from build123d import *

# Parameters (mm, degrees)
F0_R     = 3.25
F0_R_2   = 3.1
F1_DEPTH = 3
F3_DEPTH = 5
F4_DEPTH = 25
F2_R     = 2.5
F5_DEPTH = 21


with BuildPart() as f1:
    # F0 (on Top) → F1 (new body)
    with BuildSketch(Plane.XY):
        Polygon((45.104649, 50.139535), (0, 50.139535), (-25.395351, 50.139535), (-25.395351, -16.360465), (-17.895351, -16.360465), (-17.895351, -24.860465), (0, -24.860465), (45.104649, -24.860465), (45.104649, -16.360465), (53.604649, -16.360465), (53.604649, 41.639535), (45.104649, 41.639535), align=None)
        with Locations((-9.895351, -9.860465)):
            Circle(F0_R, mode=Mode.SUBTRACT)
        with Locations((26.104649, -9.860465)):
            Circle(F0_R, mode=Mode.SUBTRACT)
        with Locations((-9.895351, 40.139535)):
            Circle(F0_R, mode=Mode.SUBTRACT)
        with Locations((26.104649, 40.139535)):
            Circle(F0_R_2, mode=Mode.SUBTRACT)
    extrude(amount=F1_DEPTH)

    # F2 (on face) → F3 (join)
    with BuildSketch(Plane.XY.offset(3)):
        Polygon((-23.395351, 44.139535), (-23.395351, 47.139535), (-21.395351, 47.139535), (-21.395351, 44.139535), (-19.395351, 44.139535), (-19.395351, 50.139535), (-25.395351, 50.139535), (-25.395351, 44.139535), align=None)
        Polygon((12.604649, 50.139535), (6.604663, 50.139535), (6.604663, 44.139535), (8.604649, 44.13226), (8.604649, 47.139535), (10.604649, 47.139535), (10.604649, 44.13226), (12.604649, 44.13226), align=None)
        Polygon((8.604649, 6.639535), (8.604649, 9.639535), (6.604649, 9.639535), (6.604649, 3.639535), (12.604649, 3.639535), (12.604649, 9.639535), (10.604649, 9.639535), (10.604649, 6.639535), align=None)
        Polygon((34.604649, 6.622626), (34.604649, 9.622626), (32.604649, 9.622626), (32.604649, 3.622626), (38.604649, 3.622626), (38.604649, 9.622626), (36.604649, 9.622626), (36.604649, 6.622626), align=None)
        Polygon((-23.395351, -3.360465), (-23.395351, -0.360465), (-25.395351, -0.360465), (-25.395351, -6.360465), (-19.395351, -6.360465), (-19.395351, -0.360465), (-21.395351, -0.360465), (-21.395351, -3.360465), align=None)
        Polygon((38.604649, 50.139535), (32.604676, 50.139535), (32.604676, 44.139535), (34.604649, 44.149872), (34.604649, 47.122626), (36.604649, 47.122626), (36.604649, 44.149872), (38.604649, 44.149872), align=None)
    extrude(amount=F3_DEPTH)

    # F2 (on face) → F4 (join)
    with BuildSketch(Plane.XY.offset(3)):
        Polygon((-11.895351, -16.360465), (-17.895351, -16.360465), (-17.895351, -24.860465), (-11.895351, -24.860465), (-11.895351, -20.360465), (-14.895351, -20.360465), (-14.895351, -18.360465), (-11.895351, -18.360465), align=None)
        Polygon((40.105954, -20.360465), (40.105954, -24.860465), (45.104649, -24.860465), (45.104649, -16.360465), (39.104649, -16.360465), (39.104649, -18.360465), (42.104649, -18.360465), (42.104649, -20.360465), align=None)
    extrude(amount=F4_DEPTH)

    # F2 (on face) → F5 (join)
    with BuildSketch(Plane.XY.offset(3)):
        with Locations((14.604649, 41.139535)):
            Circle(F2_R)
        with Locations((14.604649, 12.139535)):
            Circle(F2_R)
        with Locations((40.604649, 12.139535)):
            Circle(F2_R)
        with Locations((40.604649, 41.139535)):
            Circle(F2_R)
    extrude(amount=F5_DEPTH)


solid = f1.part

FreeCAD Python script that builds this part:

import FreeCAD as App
import Part
import Sketcher

V = App.Vector
Q = App.Units.Quantity

doc = App.newDocument("Part")
body = doc.addObject("PartDesign::Body", "Body")

sketch1 = doc.addObject("Sketcher::SketchObject", "Sketch")
body.addObject(sketch1)
sketch1.AttachmentSupport = (doc.XY_Plane, [""])
sketch1.MapMode = "FlatFace"
sketch1.addGeometry([
    Part.LineSegment(V(45.104649, 50.139535, 0), V(-25.395351, 50.139535, 0)),
    Part.LineSegment(V(-25.395351, 50.139535, 0), V(-25.395351, -16.360465, 0)),
    Part.LineSegment(V(-25.395351, -16.360465, 0), V(-17.895351, -16.360465, 0)),
    Part.LineSegment(V(-17.895351, -16.360465, 0), V(-17.895351, -24.860465, 0)),
    Part.LineSegment(V(-17.895351, -24.860465, 0), V(45.104649, -24.860465, 0)),
    Part.LineSegment(V(45.104649, -24.860465, 0), V(45.104649, -16.360465, 0)),
    Part.LineSegment(V(45.104649, -16.360465, 0), V(53.604649, -16.360465, 0)),
    Part.LineSegment(V(53.604649, -16.360465, 0), V(53.604649, 41.639535, 0)),
    Part.LineSegment(V(53.604649, 41.639535, 0), V(45.104649, 41.639535, 0)),
    Part.LineSegment(V(45.104649, 41.639535, 0), V(45.104649, 50.139535, 0)),
    Part.Circle(V(-9.895351, -9.860465, 0), V(0, 0, 1), 3.25),
    Part.Circle(V(26.104649, -9.860465, 0), V(0, 0, 1), 3.25),
    Part.Circle(V(-9.895351, 40.139535, 0), V(0, 0, 1), 3.25),
    Part.Circle(V(26.104649, 40.139535, 0), V(0, 0, 1), 3.1),
], False)
sketch1.addConstraint([
    Sketcher.Constraint("Coincident", 0, 2, 1, 1),
    Sketcher.Constraint("Coincident", 1, 2, 2, 1),
    Sketcher.Constraint("Coincident", 2, 2, 3, 1),
    Sketcher.Constraint("Coincident", 3, 2, 4, 1),
    Sketcher.Constraint("Coincident", 4, 2, 5, 1),
    Sketcher.Constraint("Coincident", 5, 2, 6, 1),
    Sketcher.Constraint("Coincident", 6, 2, 7, 1),
    Sketcher.Constraint("Coincident", 7, 2, 8, 1),
    Sketcher.Constraint("Coincident", 8, 2, 9, 1),
    Sketcher.Constraint("Coincident", 9, 2, 0, 1),
    Sketcher.Constraint("Horizontal", 0),
    Sketcher.Constraint("Vertical", 1),
    Sketcher.Constraint("Horizontal", 2),
    Sketcher.Constraint("Vertical", 3),
    Sketcher.Constraint("Horizontal", 4),
    Sketcher.Constraint("Vertical", 5),
    Sketcher.Constraint("Horizontal", 6),
    Sketcher.Constraint("Vertical", 7),
    Sketcher.Constraint("Horizontal", 8),
    Sketcher.Constraint("Vertical", 9),
    Sketcher.Constraint("Equal", 10, 11),
    Sketcher.Constraint("Equal", 11, 12),
    Sketcher.Constraint("Horizontal", 10, 3, 11, 3),
    Sketcher.Constraint("Horizontal", 12, 3, 13, 3),
    Sketcher.Constraint("Horizontal", 2, 2, 5, 2),
    Sketcher.Constraint("Vertical", 10, 3, 12, 3),
    Sketcher.Constraint("Vertical", 11, 3, 13, 3),
    Sketcher.Constraint("Vertical", 5, 2, 8, 2),
    Sketcher.Constraint("Equal", 8, 3),
    Sketcher.Constraint("Equal", 5, 9),
    Sketcher.Constraint("Diameter", 10, Q("6.5 mm")),
    Sketcher.Constraint("Diameter", 13, Q("6.2 mm")),
    Sketcher.Constraint("DistanceX", 4, 1, 4, 2, Q("63 mm")),
    Sketcher.Constraint("DistanceY", 7, 1, 7, 2, Q("58 mm")),
    Sketcher.Constraint("DistanceX", 0, 2, 0, 1, Q("70.5 mm")),
    Sketcher.Constraint("DistanceX", 6, 1, 6, 2, Q("8.5 mm")),
    Sketcher.Constraint("DistanceX", 10, 3, 11, 3, Q("36 mm")),
    Sketcher.Constraint("DistanceY", 10, 3, 12, 3, Q("50 mm")),
    Sketcher.Constraint("DistanceY", 12, 3, 0, 2, Q("10 mm")),
    Sketcher.Constraint("DistanceX", 2, 2, 10, 3, Q("8 mm")),
    Sketcher.Constraint("DistanceX", 10, 3, -1, 1, Q("9.895351 mm")),
    Sketcher.Constraint("DistanceY", 10, 3, -1, 1, Q("9.860465 mm")),
])
pad1 = doc.addObject("PartDesign::Pad", "Pad")
body.addObject(pad1)
pad1.Profile = sketch1
pad1.Length = 3

sketch2 = doc.addObject("Sketcher::SketchObject", "Sketch001")
body.addObject(sketch2)
sketch2.AttachmentSupport = (doc.XY_Plane, [""])
sketch2.MapMode = "FlatFace"
sketch2.AttachmentOffset = App.Placement(V(0, 0, 3), App.Rotation())
sketch2.addGeometry([
    Part.LineSegment(V(-23.395351, 44.139535, 0), V(-23.395351, 47.139535, 0)),
    Part.LineSegment(V(-23.395351, 47.139535, 0), V(-21.395351, 47.139535, 0)),
    Part.LineSegment(V(-21.395351, 47.139535, 0), V(-21.395351, 44.139535, 0)),
    Part.LineSegment(V(-21.395351, 44.139535, 0), V(-19.395351, 44.139535, 0)),
    Part.LineSegment(V(-19.395351, 44.139535, 0), V(-19.395351, 50.139535, 0)),
    Part.LineSegment(V(-19.395351, 50.139535, 0), V(-25.395351, 50.139535, 0)),
    Part.LineSegment(V(-25.395351, 50.139535, 0), V(-25.395351, 44.139535, 0)),
    Part.LineSegment(V(-25.395351, 44.139535, 0), V(-23.395351, 44.139535, 0)),
    Part.LineSegment(V(12.604649, 50.139535, 0), V(6.604663, 50.139535, 0)),
    Part.LineSegment(V(6.604663, 50.139535, 0), V(6.604663, 44.139535, 0)),
    Part.LineSegment(V(6.604663, 44.139535, 0), V(8.604649, 44.13226, 0)),
    Part.LineSegment(V(8.604649, 44.13226, 0), V(8.604649, 47.139535, 0)),
    Part.LineSegment(V(8.604649, 47.139535, 0), V(10.604649, 47.139535, 0)),
    Part.LineSegment(V(10.604649, 47.139535, 0), V(10.604649, 44.13226, 0)),
    Part.LineSegment(V(10.604649, 44.13226, 0), V(12.604649, 44.13226, 0)),
    Part.LineSegment(V(12.604649, 44.13226, 0), V(12.604649, 50.139535, 0)),
    Part.LineSegment(V(8.604649, 6.639535, 0), V(8.604649, 9.639535, 0)),
    Part.LineSegment(V(8.604649, 9.639535, 0), V(6.604649, 9.639535, 0)),
    Part.LineSegment(V(6.604649, 9.639535, 0), V(6.604649, 3.639535, 0)),
    Part.LineSegment(V(6.604649, 3.639535, 0), V(12.604649, 3.639535, 0)),
    Part.LineSegment(V(12.604649, 3.639535, 0), V(12.604649, 9.639535, 0)),
    Part.LineSegment(V(12.604649, 9.639535, 0), V(10.604649, 9.639535, 0)),
    Part.LineSegment(V(10.604649, 9.639535, 0), V(10.604649, 6.639535, 0)),
    Part.LineSegment(V(10.604649, 6.639535, 0), V(8.604649, 6.639535, 0)),
    Part.LineSegment(V(34.604649, 6.622626, 0), V(34.604649, 9.622626, 0)),
    Part.LineSegment(V(34.604649, 9.622626, 0), V(32.604649, 9.622626, 0)),
    Part.LineSegment(V(32.604649, 9.622626, 0), V(32.604649, 3.622626, 0)),
    Part.LineSegment(V(32.604649, 3.622626, 0), V(38.604649, 3.622626, 0)),
    Part.LineSegment(V(38.604649, 3.622626, 0), V(38.604649, 9.622626, 0)),
    Part.LineSegment(V(38.604649, 9.622626, 0), V(36.604649, 9.622626, 0)),
    Part.LineSegment(V(36.604649, 9.622626, 0), V(36.604649, 6.622626, 0)),
    Part.LineSegment(V(36.604649, 6.622626, 0), V(34.604649, 6.622626, 0)),
    Part.LineSegment(V(-23.395351, -3.360465, 0), V(-23.395351, -0.360465, 0)),
    Part.LineSegment(V(-23.395351, -0.360465, 0), V(-25.395351, -0.360465, 0)),
    Part.LineSegment(V(-25.395351, -0.360465, 0), V(-25.395351, -6.360465, 0)),
    Part.LineSegment(V(-25.395351, -6.360465, 0), V(-19.395351, -6.360465, 0)),
    Part.LineSegment(V(-19.395351, -6.360465, 0), V(-19.395351, -0.360465, 0)),
    Part.LineSegment(V(-19.395351, -0.360465, 0), V(-21.395351, -0.360465, 0)),
    Part.LineSegment(V(-21.395351, -0.360465, 0), V(-21.395351, -3.360465, 0)),
    Part.LineSegment(V(-21.395351, -3.360465, 0), V(-23.395351, -3.360465, 0)),
    Part.LineSegment(V(38.604649, 50.139535, 0), V(32.604676, 50.139535, 0)),
    Part.LineSegment(V(32.604676, 50.139535, 0), V(32.604676, 44.139535, 0)),
    Part.LineSegment(V(32.604676, 44.139535, 0), V(34.604649, 44.149872, 0)),
    Part.LineSegment(V(34.604649, 44.149872, 0), V(34.604649, 47.122626, 0)),
    Part.LineSegment(V(34.604649, 47.122626, 0), V(36.604649, 47.122626, 0)),
    Part.LineSegment(V(36.604649, 47.122626, 0), V(36.604649, 44.149872, 0)),
    Part.LineSegment(V(36.604649, 44.149872, 0), V(38.604649, 44.149872, 0)),
    Part.LineSegment(V(38.604649, 44.149872, 0), V(38.604649, 50.139535, 0)),
], False)
sketch2.addConstraint([
    Sketcher.Constraint("Coincident", 0, 2, 1, 1),
    Sketcher.Constraint("Coincident", 1, 2, 2, 1),
    Sketcher.Constraint("Coincident", 2, 2, 3, 1),
    Sketcher.Constraint("Coincident", 3, 2, 4, 1),
    Sketcher.Constraint("Coincident", 4, 2, 5, 1),
    Sketcher.Constraint("Coincident", 5, 2, 6, 1),
    Sketcher.Constraint("Coincident", 6, 2, 7, 1),
    Sketcher.Constraint("Coincident", 7, 2, 0, 1),
    Sketcher.Constraint("Coincident", 8, 2, 9, 1),
    Sketcher.Constraint("Coincident", 9, 2, 10, 1),
    Sketcher.Constraint("Coincident", 10, 2, 11, 1),
    Sketcher.Constraint("Coincident", 11, 2, 12, 1),
    Sketcher.Constraint("Coincident", 12, 2, 13, 1),
    Sketcher.Constraint("Coincident", 13, 2, 14, 1),
    Sketcher.Constraint("Coincident", 14, 2, 15, 1),
    Sketcher.Constraint("Coincident", 15, 2, 8, 1),
    Sketcher.Constraint("Coincident", 16, 2, 17, 1),
    Sketcher.Constraint("Coincident", 17, 2, 18, 1),
    Sketcher.Constraint("Coincident", 18, 2, 19, 1),
    Sketcher.Constraint("Coincident", 19, 2, 20, 1),
    Sketcher.Constraint("Coincident", 20, 2, 21, 1),
    Sketcher.Constraint("Coincident", 21, 2, 22, 1),
    Sketcher.Constraint("Coincident", 22, 2, 23, 1),
    Sketcher.Constraint("Coincident", 23, 2, 16, 1),
    Sketcher.Constraint("Coincident", 24, 2, 25, 1),
    Sketcher.Constraint("Coincident", 25, 2, 26, 1),
    Sketcher.Constraint("Coincident", 26, 2, 27, 1),
    Sketcher.Constraint("Coincident", 27, 2, 28, 1),
    Sketcher.Constraint("Coincident", 28, 2, 29, 1),
    Sketcher.Constraint("Coincident", 29, 2, 30, 1),
    Sketcher.Constraint("Coincident", 30, 2, 31, 1),
    Sketcher.Constraint("Coincident", 31, 2, 24, 1),
    Sketcher.Constraint("Coincident", 32, 2, 33, 1),
    Sketcher.Constraint("Coincident", 33, 2, 34, 1),
    Sketcher.Constraint("Coincident", 34, 2, 35, 1),
    Sketcher.Constraint("Coincident", 35, 2, 36, 1),
    Sketcher.Constraint("Coincident", 36, 2, 37, 1),
    Sketcher.Constraint("Coincident", 37, 2, 38, 1),
    Sketcher.Constraint("Coincident", 38, 2, 39, 1),
    Sketcher.Constraint("Coincident", 39, 2, 32, 1),
    Sketcher.Constraint("Coincident", 40, 2, 41, 1),
    Sketcher.Constraint("Coincident", 41, 2, 42, 1),
    Sketcher.Constraint("Coincident", 42, 2, 43, 1),
    Sketcher.Constraint("Coincident", 43, 2, 44, 1),
    Sketcher.Constraint("Coincident", 44, 2, 45, 1),
    Sketcher.Constraint("Coincident", 45, 2, 46, 1),
    Sketcher.Constraint("Coincident", 46, 2, 47, 1),
    Sketcher.Constraint("Coincident", 47, 2, 40, 1),
    Sketcher.Constraint("Vertical", 0),
    Sketcher.Constraint("Horizontal", 1),
    Sketcher.Constraint("Vertical", 2),
    Sketcher.Constraint("Horizontal", 3),
    Sketcher.Constraint("Vertical", 4),
    Sketcher.Constraint("Horizontal", 5),
    Sketcher.Constraint("Vertical", 6),
    Sketcher.Constraint("Horizontal", 7),
    Sketcher.Constraint("Horizontal", 8),
    Sketcher.Constraint("Vertical", 9),
    Sketcher.Constraint("Vertical", 11),
    Sketcher.Constraint("Horizontal", 12),
    Sketcher.Constraint("Vertical", 13),
    Sketcher.Constraint("Horizontal", 14),
    Sketcher.Constraint("Vertical", 15),
    Sketcher.Constraint("Vertical", 16),
    Sketcher.Constraint("Horizontal", 17),
    Sketcher.Constraint("Vertical", 18),
    Sketcher.Constraint("Horizontal", 19),
    Sketcher.Constraint("Vertical", 20),
    Sketcher.Constraint("Horizontal", 21),
    Sketcher.Constraint("Vertical", 22),
    Sketcher.Constraint("Horizontal", 23),
    Sketcher.Constraint("Vertical", 24),
    Sketcher.Constraint("Horizontal", 25),
    Sketcher.Constraint("Vertical", 26),
    Sketcher.Constraint("Horizontal", 27),
    Sketcher.Constraint("Vertical", 28),
    Sketcher.Constraint("Horizontal", 29),
    Sketcher.Constraint("Vertical", 30),
    Sketcher.Constraint("Horizontal", 31),
    Sketcher.Constraint("Vertical", 32),
    Sketcher.Constraint("Horizontal", 33),
    Sketcher.Constraint("Vertical", 34),
    Sketcher.Constraint("Horizontal", 35),
    Sketcher.Constraint("Vertical", 36),
    Sketcher.Constraint("Horizontal", 37),
    Sketcher.Constraint("Vertical", 38),
    Sketcher.Constraint("Horizontal", 39),
    Sketcher.Constraint("Horizontal", 40),
    Sketcher.Constraint("Vertical", 41),
    Sketcher.Constraint("Vertical", 43),
    Sketcher.Constraint("Horizontal", 44),
    Sketcher.Constraint("Vertical", 45),
    Sketcher.Constraint("Horizontal", 46),
    Sketcher.Constraint("Vertical", 47),
    Sketcher.Constraint("Horizontal", 3, 2, 6, 2),
    Sketcher.Constraint("Horizontal", 5, 2, 8, 2),
    Sketcher.Constraint("Horizontal", 7, 2, 9, 2),
    Sketcher.Constraint("Horizontal", 1, 2, 11, 2),
    Sketcher.Constraint("Horizontal", 10, 2, 13, 2),
    Sketcher.Constraint("Horizontal", 17, 2, 20, 2),
    Sketcher.Constraint("Horizontal", 25, 2, 28, 2),
    Sketcher.Constraint("Horizontal", 33, 2, 36, 2),
    Sketcher.Constraint("Horizontal", 15, 2, 40, 2),
    Sketcher.Constraint("Horizontal", 9, 2, 41, 2),
    Sketcher.Constraint("Horizontal", 42, 2, 45, 2),
    Sketcher.Constraint("Vertical", 11, 2, 16, 2),
    Sketcher.Constraint("Vertical", 15, 2, 19, 2),
    Sketcher.Constraint("Vertical", 13, 2, 21, 2),
    Sketcher.Constraint("Vertical", 7, 2, 32, 2),
    Sketcher.Constraint("Vertical", 6, 2, 33, 2),
    Sketcher.Constraint("Vertical", 4, 2, 35, 2),
    Sketcher.Constraint("Vertical", 2, 2, 37, 2),
    Sketcher.Constraint("Vertical", 31, 2, 42, 2),
    Sketcher.Constraint("Vertical", 30, 2, 44, 2),
    Sketcher.Constraint("Vertical", 28, 2, 46, 2),
    Sketcher.Constraint("Equal", 1, 3),
    Sketcher.Constraint("Equal", 3, 7),
    Sketcher.Constraint("Equal", 7, 12),
    Sketcher.Constraint("Equal", 12, 14),
    Sketcher.Constraint("Equal", 14, 17),
    Sketcher.Constraint("Equal", 23, 25),
    Sketcher.Constraint("Equal", 19, 27),
    Sketcher.Constraint("Equal", 25, 29),
    Sketcher.Constraint("Equal", 35, 4),
    Sketcher.Constraint("Equal", 2, 16),
    Sketcher.Constraint("Equal", 9, 18),
    Sketcher.Constraint("Equal", 22, 24),
    Sketcher.Constraint("Equal", 20, 26),
    Sketcher.Constraint("Equal", 30, 32),
    Sketcher.Constraint("Equal", 28, 34),
    Sketcher.Constraint("Equal", 10, 42),
    Sketcher.Constraint("DistanceX", 1, 1, 1, 2, Q("2 mm")),
    Sketcher.Constraint("DistanceY", 0, 1, 0, 2, Q("3 mm")),
    Sketcher.Constraint("Distance", 10, Q("1.999999 mm")),
    Sketcher.Constraint("DistanceX", 3, 2, 10, 2, Q("28 mm")),
    Sketcher.Constraint("DistanceX", 20, 2, 24, 2, Q("22 mm")),
    Sketcher.Constraint("DistanceY", 32, 2, 18, 2, Q("4 mm")),
    Sketcher.Constraint("DistanceY", 16, 2, 9, 2, Q("34.5 mm")),
    Sketcher.Constraint("DistanceY", 11, 1, 11, 2, Q("3.007275 mm")),
    Sketcher.Constraint("DistanceY", 43, 1, 43, 2, Q("2.972754 mm")),
    Sketcher.Constraint("DistanceY", 47, 1, 47, 2, Q("5.989663 mm")),
    Sketcher.Constraint("DistanceX", 0, 2, -1, 1, Q("23.395351 mm")),
    Sketcher.Constraint("DistanceY", -1, 1, 10, 2, Q("44.13226 mm")),
    Sketcher.Constraint("DistanceY", 24, 2, 20, 2, Q("0.016909 mm")),
])
pad2 = doc.addObject("PartDesign::Pad", "Pad001")
body.addObject(pad2)
pad2.Profile = sketch2
pad2.Length = 5

sketch3 = doc.addObject("Sketcher::SketchObject", "Sketch002")
body.addObject(sketch3)
sketch3.AttachmentSupport = (doc.XY_Plane, [""])
sketch3.MapMode = "FlatFace"
sketch3.AttachmentOffset = App.Placement(V(0, 0, 3), App.Rotation())
sketch3.addGeometry([
    Part.LineSegment(V(-11.895351, -16.360465, 0), V(-17.895351, -16.360465, 0)),
    Part.LineSegment(V(-17.895351, -16.360465, 0), V(-17.895351, -24.860465, 0)),
    Part.LineSegment(V(-17.895351, -24.860465, 0), V(-11.895351, -24.860465, 0)),
    Part.LineSegment(V(-11.895351, -24.860465, 0), V(-11.895351, -20.360465, 0)),
    Part.LineSegment(V(-11.895351, -20.360465, 0), V(-14.895351, -20.360465, 0)),
    Part.LineSegment(V(-14.895351, -20.360465, 0), V(-14.895351, -18.360465, 0)),
    Part.LineSegment(V(-14.895351, -18.360465, 0), V(-11.895351, -18.360465, 0)),
    Part.LineSegment(V(-11.895351, -18.360465, 0), V(-11.895351, -16.360465, 0)),
    Part.LineSegment(V(40.105954, -20.360465, 0), V(40.105954, -24.860465, 0)),
    Part.LineSegment(V(40.105954, -24.860465, 0), V(45.104649, -24.860465, 0)),
    Part.LineSegment(V(45.104649, -24.860465, 0), V(45.104649, -16.360465, 0)),
    Part.LineSegment(V(45.104649, -16.360465, 0), V(39.104649, -16.360465, 0)),
    Part.LineSegment(V(39.104649, -16.360465, 0), V(39.104649, -18.360465, 0)),
    Part.LineSegment(V(39.104649, -18.360465, 0), V(42.104649, -18.360465, 0)),
    Part.LineSegment(V(42.104649, -18.360465, 0), V(42.104649, -20.360465, 0)),
    Part.LineSegment(V(42.104649, -20.360465, 0), V(40.105954, -20.360465, 0)),
], False)
sketch3.addConstraint([
    Sketcher.Constraint("Coincident", 0, 2, 1, 1),
    Sketcher.Constraint("Coincident", 1, 2, 2, 1),
    Sketcher.Constraint("Coincident", 2, 2, 3, 1),
    Sketcher.Constraint("Coincident", 3, 2, 4, 1),
    Sketcher.Constraint("Coincident", 4, 2, 5, 1),
    Sketcher.Constraint("Coincident", 5, 2, 6, 1),
    Sketcher.Constraint("Coincident", 6, 2, 7, 1),
    Sketcher.Constraint("Coincident", 7, 2, 0, 1),
    Sketcher.Constraint("Coincident", 8, 2, 9, 1),
    Sketcher.Constraint("Coincident", 9, 2, 10, 1),
    Sketcher.Constraint("Coincident", 10, 2, 11, 1),
    Sketcher.Constraint("Coincident", 11, 2, 12, 1),
    Sketcher.Constraint("Coincident", 12, 2, 13, 1),
    Sketcher.Constraint("Coincident", 13, 2, 14, 1),
    Sketcher.Constraint("Coincident", 14, 2, 15, 1),
    Sketcher.Constraint("Coincident", 15, 2, 8, 1),
    Sketcher.Constraint("Horizontal", 0),
    Sketcher.Constraint("Vertical", 1),
    Sketcher.Constraint("Horizontal", 2),
    Sketcher.Constraint("Vertical", 3),
    Sketcher.Constraint("Horizontal", 4),
    Sketcher.Constraint("Vertical", 5),
    Sketcher.Constraint("Horizontal", 6),
    Sketcher.Constraint("Vertical", 7),
    Sketcher.Constraint("Vertical", 8),
    Sketcher.Constraint("Horizontal", 9),
    Sketcher.Constraint("Vertical", 10),
    Sketcher.Constraint("Horizontal", 11),
    Sketcher.Constraint("Vertical", 12),
    Sketcher.Constraint("Horizontal", 13),
    Sketcher.Constraint("Vertical", 14),
    Sketcher.Constraint("Horizontal", 15),
    Sketcher.Constraint("Horizontal", 2, 2, 8, 2),
    Sketcher.Constraint("Horizontal", 7, 2, 10, 2),
    Sketcher.Constraint("Horizontal", 6, 2, 12, 2),
    Sketcher.Constraint("Horizontal", 4, 2, 14, 2),
    Sketcher.Constraint("Vertical", 3, 2, 6, 2),
    Sketcher.Constraint("Equal", 2, 11),
    Sketcher.Constraint("Equal", 6, 13),
    Sketcher.Constraint("Equal", 5, 7),
    Sketcher.Constraint("DistanceX", 0, 2, 0, 1, Q("6 mm")),
    Sketcher.Constraint("DistanceX", 4, 2, 4, 1, Q("3 mm")),
    Sketcher.Constraint("DistanceY", 5, 1, 5, 2, Q("2 mm")),
    Sketcher.Constraint("DistanceY", 1, 2, 1, 1, Q("8.5 mm")),
    Sketcher.Constraint("DistanceX", 2, 2, 9, 2, Q("57 mm")),
    Sketcher.Constraint("DistanceX", 9, 1, 9, 2, Q("4.998695 mm")),
    Sketcher.Constraint("DistanceX", 0, 2, -1, 1, Q("17.895351 mm")),
    Sketcher.Constraint("DistanceY", 0, 2, -1, 1, Q("16.360465 mm")),
])
pad3 = doc.addObject("PartDesign::Pad", "Pad002")
body.addObject(pad3)
pad3.Profile = sketch3
pad3.Length = 25

sketch4 = doc.addObject("Sketcher::SketchObject", "Sketch003")
body.addObject(sketch4)
sketch4.AttachmentSupport = (doc.XY_Plane, [""])
sketch4.MapMode = "FlatFace"
sketch4.AttachmentOffset = App.Placement(V(0, 0, 3), App.Rotation())
sketch4.addGeometry([
    Part.Circle(V(14.604649, 41.139535, 0), V(0, 0, 1), 2.5),
    Part.Circle(V(14.604649, 12.139535, 0), V(0, 0, 1), 2.5),
    Part.Circle(V(40.604649, 12.139535, 0), V(0, 0, 1), 2.5),
    Part.Circle(V(40.604649, 41.139535, 0), V(0, 0, 1), 2.5),
], False)
sketch4.addConstraint([
    Sketcher.Constraint("Equal", 0, 1),
    Sketcher.Constraint("Equal", 1, 2),
    Sketcher.Constraint("Equal", 2, 3),
    Sketcher.Constraint("Horizontal", 1, 3, 2, 3),
    Sketcher.Constraint("Horizontal", 0, 3, 3, 3),
    Sketcher.Constraint("Vertical", 0, 3, 1, 3),
    Sketcher.Constraint("Vertical", 2, 3, 3, 3),
    Sketcher.Constraint("Diameter", 0, Q("5 mm")),
    Sketcher.Constraint("DistanceY", 1, 3, 0, 3, Q("29 mm")),
    Sketcher.Constraint("DistanceX", 1, 3, 2, 3, Q("26 mm")),
    Sketcher.Constraint("DistanceX", -1, 1, 0, 3, Q("14.604649 mm")),
    Sketcher.Constraint("DistanceY", -1, 1, 0, 3, Q("41.139535 mm")),
])
pad4 = doc.addObject("PartDesign::Pad", "Pad003")
body.addObject(pad4)
pad4.Profile = sketch4
pad4.Length = 21

doc.recompute()
